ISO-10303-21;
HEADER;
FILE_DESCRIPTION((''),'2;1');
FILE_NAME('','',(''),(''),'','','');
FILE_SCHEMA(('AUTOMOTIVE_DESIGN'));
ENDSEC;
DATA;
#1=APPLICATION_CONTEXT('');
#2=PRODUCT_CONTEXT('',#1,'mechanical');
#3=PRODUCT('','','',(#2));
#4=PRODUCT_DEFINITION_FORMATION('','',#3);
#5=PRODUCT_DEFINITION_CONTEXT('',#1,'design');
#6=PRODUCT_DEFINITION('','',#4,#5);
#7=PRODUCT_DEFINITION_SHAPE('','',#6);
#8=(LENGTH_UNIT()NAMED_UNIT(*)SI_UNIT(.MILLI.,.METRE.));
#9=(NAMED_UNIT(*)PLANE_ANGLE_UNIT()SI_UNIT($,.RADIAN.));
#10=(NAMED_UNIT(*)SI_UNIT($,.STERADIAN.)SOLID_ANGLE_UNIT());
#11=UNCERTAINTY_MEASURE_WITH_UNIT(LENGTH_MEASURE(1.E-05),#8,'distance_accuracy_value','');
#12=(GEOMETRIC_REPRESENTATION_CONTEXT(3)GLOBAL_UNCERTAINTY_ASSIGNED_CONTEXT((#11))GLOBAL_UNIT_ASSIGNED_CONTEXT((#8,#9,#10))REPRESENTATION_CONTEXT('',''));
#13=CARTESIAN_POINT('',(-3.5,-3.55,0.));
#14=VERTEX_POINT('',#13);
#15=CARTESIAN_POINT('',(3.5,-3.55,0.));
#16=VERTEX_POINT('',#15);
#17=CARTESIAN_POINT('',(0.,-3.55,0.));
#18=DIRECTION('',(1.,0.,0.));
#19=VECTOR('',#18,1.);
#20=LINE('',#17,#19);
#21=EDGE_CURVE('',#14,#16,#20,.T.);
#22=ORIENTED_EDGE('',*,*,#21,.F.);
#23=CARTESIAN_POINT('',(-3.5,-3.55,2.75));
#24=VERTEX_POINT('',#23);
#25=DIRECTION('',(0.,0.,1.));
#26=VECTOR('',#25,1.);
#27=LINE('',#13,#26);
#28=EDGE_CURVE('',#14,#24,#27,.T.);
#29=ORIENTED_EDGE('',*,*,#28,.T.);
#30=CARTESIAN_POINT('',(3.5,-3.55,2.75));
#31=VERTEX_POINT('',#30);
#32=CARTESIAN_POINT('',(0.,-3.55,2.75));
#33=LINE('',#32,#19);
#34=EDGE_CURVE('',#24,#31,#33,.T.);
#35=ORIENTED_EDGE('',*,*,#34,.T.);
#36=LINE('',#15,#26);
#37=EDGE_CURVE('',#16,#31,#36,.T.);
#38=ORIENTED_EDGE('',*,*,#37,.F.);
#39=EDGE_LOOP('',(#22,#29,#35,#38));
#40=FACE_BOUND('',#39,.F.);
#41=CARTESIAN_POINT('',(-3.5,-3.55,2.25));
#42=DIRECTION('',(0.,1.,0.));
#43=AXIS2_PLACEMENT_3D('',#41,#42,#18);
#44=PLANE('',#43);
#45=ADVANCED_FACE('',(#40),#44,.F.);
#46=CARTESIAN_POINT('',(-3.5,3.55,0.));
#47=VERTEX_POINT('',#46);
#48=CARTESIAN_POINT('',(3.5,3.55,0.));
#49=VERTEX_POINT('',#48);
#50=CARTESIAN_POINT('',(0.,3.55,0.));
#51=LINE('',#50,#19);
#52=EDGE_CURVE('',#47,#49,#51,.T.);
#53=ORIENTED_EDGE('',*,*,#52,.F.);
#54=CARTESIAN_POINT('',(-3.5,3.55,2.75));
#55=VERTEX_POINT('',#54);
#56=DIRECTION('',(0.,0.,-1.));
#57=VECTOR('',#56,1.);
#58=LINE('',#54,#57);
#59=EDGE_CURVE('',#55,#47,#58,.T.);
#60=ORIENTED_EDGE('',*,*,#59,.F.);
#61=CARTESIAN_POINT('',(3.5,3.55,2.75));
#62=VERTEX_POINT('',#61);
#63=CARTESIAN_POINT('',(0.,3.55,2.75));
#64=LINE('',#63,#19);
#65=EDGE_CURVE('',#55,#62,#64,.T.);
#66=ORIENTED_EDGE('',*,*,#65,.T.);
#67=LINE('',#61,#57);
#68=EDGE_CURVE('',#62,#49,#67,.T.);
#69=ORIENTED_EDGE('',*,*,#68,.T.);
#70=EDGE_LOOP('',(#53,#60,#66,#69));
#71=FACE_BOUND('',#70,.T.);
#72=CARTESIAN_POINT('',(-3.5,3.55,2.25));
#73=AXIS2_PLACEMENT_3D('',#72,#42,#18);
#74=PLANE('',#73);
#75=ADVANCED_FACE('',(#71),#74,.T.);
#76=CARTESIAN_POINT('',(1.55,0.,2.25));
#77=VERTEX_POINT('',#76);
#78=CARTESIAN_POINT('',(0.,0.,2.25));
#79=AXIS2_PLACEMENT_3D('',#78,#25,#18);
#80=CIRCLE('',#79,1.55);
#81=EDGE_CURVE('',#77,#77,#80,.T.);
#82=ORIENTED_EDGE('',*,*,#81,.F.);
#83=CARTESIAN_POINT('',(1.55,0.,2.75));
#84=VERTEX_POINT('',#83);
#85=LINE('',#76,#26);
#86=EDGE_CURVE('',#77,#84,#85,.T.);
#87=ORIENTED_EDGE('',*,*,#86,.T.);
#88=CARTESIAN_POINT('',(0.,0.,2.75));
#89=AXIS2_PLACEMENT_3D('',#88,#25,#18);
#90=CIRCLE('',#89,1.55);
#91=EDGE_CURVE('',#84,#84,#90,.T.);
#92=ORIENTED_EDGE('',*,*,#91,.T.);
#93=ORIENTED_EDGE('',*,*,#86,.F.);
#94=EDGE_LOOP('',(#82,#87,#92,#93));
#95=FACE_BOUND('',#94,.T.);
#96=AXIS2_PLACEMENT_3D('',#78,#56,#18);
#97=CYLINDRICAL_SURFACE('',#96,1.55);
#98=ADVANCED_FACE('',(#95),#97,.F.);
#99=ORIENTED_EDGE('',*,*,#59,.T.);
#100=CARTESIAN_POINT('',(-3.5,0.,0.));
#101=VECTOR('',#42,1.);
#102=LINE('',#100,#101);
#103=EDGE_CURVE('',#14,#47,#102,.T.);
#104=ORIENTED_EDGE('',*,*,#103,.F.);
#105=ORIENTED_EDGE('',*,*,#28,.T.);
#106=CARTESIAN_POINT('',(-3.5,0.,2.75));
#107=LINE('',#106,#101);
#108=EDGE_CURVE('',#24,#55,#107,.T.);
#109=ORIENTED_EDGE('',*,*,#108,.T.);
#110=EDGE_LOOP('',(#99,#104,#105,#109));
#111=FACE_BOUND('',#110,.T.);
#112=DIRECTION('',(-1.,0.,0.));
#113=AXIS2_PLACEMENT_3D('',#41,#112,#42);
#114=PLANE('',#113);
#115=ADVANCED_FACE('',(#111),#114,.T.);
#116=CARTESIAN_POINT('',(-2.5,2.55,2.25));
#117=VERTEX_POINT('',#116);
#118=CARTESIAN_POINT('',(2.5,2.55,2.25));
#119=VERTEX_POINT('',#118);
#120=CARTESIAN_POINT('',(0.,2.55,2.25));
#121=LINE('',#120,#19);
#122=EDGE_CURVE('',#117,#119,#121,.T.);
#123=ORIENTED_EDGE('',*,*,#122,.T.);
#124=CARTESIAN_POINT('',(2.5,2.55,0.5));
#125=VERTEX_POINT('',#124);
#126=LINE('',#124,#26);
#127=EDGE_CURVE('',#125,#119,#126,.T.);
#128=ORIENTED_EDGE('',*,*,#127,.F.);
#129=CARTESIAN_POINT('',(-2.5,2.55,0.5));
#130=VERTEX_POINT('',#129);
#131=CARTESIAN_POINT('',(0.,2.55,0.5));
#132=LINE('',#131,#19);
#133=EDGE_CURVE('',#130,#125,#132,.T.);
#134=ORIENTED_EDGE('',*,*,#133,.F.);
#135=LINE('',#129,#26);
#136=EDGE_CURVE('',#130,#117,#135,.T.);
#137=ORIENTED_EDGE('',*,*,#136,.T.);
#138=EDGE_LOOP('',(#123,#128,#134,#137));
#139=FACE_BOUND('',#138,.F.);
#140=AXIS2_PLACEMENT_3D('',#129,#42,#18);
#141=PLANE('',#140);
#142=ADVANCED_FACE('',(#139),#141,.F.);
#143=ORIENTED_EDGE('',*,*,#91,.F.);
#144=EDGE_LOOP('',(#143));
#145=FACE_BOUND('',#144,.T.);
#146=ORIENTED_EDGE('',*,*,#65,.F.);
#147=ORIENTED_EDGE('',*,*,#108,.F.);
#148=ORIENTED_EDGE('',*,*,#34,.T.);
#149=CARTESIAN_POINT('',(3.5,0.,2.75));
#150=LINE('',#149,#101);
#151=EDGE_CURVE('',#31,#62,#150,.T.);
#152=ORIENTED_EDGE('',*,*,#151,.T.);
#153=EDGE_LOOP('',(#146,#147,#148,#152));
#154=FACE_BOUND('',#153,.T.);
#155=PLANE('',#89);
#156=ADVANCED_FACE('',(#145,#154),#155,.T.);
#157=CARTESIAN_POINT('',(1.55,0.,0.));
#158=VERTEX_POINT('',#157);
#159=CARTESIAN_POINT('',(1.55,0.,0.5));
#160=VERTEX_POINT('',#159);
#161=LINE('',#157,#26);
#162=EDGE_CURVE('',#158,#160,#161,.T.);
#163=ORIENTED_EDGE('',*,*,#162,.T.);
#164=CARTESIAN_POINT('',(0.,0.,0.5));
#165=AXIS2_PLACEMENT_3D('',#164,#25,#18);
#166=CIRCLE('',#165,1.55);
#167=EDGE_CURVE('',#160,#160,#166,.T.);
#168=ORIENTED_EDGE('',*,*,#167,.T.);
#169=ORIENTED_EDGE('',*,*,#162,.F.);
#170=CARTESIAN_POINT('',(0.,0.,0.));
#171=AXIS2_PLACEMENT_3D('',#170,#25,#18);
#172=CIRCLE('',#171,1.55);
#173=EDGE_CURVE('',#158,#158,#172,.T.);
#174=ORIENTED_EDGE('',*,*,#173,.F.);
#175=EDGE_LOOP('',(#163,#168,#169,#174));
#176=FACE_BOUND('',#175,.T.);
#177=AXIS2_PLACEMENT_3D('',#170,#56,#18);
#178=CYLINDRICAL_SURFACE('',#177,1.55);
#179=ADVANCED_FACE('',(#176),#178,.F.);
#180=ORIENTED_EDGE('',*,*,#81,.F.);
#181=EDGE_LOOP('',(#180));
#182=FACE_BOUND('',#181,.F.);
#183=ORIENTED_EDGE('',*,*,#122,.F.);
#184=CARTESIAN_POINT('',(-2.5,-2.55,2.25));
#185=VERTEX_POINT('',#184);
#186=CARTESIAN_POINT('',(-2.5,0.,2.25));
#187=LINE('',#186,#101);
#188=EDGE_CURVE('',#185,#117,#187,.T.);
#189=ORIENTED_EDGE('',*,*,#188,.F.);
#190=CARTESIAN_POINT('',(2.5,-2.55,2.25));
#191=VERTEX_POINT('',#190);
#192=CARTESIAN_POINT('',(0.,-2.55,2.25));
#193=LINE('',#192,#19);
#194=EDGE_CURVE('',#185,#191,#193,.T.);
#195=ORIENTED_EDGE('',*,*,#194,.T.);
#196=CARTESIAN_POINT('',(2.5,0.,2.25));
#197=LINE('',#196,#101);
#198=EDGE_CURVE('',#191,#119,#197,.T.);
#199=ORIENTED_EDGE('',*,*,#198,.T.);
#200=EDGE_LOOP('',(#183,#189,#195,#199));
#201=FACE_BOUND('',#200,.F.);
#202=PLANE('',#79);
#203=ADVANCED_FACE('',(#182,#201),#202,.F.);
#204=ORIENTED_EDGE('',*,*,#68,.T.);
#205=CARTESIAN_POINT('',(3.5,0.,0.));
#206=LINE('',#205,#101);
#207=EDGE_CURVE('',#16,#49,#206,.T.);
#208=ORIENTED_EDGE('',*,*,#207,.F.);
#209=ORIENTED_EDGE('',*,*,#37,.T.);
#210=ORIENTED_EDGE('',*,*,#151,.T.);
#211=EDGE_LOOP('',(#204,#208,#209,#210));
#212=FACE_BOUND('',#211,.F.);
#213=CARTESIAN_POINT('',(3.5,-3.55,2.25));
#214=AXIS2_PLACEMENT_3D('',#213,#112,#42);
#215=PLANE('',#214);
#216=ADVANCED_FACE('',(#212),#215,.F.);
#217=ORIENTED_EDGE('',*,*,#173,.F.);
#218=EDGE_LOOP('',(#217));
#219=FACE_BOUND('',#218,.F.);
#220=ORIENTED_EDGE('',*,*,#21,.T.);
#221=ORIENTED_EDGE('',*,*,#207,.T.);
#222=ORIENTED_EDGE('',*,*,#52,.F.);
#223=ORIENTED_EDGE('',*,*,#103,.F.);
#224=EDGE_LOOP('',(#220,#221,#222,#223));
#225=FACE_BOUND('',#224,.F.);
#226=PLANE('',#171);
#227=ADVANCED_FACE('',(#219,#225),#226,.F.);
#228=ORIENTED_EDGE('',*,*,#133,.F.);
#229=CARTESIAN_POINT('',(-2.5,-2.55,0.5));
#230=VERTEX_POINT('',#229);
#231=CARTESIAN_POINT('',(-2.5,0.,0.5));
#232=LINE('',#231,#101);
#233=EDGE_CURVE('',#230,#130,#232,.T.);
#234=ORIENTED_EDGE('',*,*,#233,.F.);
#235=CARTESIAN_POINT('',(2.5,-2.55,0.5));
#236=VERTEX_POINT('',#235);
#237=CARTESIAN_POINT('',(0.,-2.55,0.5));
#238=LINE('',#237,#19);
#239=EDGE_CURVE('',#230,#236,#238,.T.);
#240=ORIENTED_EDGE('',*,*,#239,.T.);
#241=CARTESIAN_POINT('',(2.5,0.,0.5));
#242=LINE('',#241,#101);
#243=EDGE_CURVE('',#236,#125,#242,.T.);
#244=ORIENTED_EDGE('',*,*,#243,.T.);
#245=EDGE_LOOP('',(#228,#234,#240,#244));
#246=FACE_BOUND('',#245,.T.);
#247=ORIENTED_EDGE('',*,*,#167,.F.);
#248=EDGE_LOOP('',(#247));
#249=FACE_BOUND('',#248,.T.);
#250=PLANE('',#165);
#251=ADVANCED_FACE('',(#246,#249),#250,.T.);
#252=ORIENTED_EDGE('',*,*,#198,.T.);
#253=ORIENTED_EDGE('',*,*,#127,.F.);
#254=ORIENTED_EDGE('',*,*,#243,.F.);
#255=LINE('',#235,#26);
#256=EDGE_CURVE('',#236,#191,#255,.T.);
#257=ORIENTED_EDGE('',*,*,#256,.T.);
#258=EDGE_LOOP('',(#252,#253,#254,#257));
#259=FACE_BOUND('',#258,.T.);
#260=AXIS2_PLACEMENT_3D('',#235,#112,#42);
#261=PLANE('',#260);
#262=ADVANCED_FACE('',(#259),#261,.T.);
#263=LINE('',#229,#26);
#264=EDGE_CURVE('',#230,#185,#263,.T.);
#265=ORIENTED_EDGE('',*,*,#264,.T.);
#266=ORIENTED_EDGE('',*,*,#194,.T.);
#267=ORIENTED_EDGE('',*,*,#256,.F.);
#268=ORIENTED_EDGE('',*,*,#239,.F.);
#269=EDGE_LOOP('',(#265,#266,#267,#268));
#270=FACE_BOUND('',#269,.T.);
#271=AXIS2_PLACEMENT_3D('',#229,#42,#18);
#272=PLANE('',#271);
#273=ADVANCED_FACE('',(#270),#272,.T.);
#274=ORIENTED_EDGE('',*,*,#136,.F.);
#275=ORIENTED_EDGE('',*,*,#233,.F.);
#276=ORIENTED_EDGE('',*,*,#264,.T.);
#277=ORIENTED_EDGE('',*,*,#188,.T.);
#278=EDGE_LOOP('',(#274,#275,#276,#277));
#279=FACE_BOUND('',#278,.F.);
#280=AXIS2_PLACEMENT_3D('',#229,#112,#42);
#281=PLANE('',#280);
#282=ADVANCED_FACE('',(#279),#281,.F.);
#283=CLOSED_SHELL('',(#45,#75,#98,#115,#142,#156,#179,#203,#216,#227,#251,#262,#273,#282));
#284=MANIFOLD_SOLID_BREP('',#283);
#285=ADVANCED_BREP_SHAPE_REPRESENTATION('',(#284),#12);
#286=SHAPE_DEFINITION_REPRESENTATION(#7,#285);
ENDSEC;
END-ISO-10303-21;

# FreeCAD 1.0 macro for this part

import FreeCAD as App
import Part
import Sketcher
Q = App.Units.Quantity

doc = App.newDocument("Part")
params = doc.addObject("Spreadsheet::Sheet", "Params")
for row, (alias, value) in enumerate([
    ("sketch1_diameter", "3.1 mm"),
    ("sketch1_width", "7 mm"),
    ("sketch1_height", "7.1 mm"),
    ("pad1_length", "0.5 mm"),
    ("sketch2_width", "7 mm"),
    ("sketch2_width2", "5 mm"),
    ("sketch2_height", "7.1 mm"),
    ("sketch2_height2", "5.1 mm"),
    ("pad2_length", "1.75 mm"),
    ("sketch3_diameter", "3.1 mm"),
    ("sketch3_width", "7 mm"),
    ("sketch3_height", "7.1 mm"),
    ("pad3_length", "0.5 mm"),
], start=1):
    params.set(f"A{row}", alias)
    params.set(f"B{row}", "=" + value)
    params.setAlias(f"B{row}", alias)

body = doc.addObject("PartDesign::Body", "Body")

# Sketch on XY plane
sketch1 = body.newObject("Sketcher::SketchObject", "Sketch")
sketch1.AttachmentSupport = (doc.getObject("XY_Plane"), [""])
sketch1.MapMode = "FlatFace"
sketch1.addGeometry(Part.LineSegment(App.Vector(-3.5, 3.5, 0), App.Vector(-3.5, -3.5, 0)), False)
sketch1.addGeometry(Part.LineSegment(App.Vector(-3.5, -3.5, 0), App.Vector(3.5, -3.5, 0)), False)
sketch1.addGeometry(Part.LineSegment(App.Vector(3.5, -3.5, 0), App.Vector(3.5, 3.5, 0)), False)
sketch1.addGeometry(Part.LineSegment(App.Vector(3.5, 3.5, 0), App.Vector(-3.5, 3.5, 0)), False)
sketch1.addGeometry(Part.Circle(App.Vector(0, 0, 0), App.Vector(0, 0, 1), 1.6), False)
sketch1.addConstraint(Sketcher.Constraint("Coincident", 0, 2, 1, 1))
sketch1.addConstraint(Sketcher.Constraint("Coincident", 1, 2, 2, 1))
sketch1.addConstraint(Sketcher.Constraint("Coincident", 2, 2, 3, 1))
sketch1.addConstraint(Sketcher.Constraint("Coincident", 3, 2, 0, 1))
sketch1.addConstraint(Sketcher.Constraint("Vertical", 0))
sketch1.addConstraint(Sketcher.Constraint("Horizontal", 1))
sketch1.addConstraint(Sketcher.Constraint("Vertical", 2))
sketch1.addConstraint(Sketcher.Constraint("Horizontal", 3))
sketch1.addConstraint(Sketcher.Constraint("Coincident", 4, 3, -1, 1))
sketch1.addConstraint(Sketcher.Constraint("Symmetric", 0, 2, 2, 2, -1, 1))
sketch1.addConstraint(Sketcher.Constraint("Diameter", 4, Q("3.1 mm")))
sketch1.addConstraint(Sketcher.Constraint("DistanceX", 1, 1, 1, 2, Q("7 mm")))
sketch1.addConstraint(Sketcher.Constraint("DistanceY", 0, 2, 0, 1, Q("7.1 mm")))
sketch1.setExpression("Constraints[10]", "Params.sketch1_diameter")
sketch1.setExpression("Constraints[11]", "Params.sketch1_width")
sketch1.setExpression("Constraints[12]", "Params.sketch1_height")
pad1 = body.newObject("PartDesign::Pad", "Pad")
pad1.Profile = sketch1
pad1.setExpression("Length", "Params.pad1_length")

# Sketch on XY plane
sketch2 = body.newObject("Sketcher::SketchObject", "Sketch001")
sketch2.AttachmentSupport = (doc.getObject("XY_Plane"), [""])
sketch2.MapMode = "FlatFace"
sketch2.AttachmentOffset = App.Placement(App.Vector(0, 0, 0.5), App.Rotation())
sketch2.addGeometry(Part.LineSegment(App.Vector(-4, 4, 0), App.Vector(-4, -4, 0)), False)
sketch2.addGeometry(Part.LineSegment(App.Vector(-4, -4, 0), App.Vector(4, -4, 0)), False)
sketch2.addGeometry(Part.LineSegment(App.Vector(4, -4, 0), App.Vector(4, 4, 0)), False)
sketch2.addGeometry(Part.LineSegment(App.Vector(4, 4, 0), App.Vector(-4, 4, 0)), False)
sketch2.addGeometry(Part.LineSegment(App.Vector(2, -3, 0), App.Vector(-2, -3, 0)), False)
sketch2.addGeometry(Part.LineSegment(App.Vector(-2, -3, 0), App.Vector(-2, 3, 0)), False)
sketch2.addGeometry(Part.LineSegment(App.Vector(-2, 3, 0), App.Vector(2, 3, 0)), False)
sketch2.addGeometry(Part.LineSegment(App.Vector(2, 3, 0), App.Vector(2, -3, 0)), False)
sketch2.addConstraint(Sketcher.Constraint("Coincident", 0, 2, 1, 1))
sketch2.addConstraint(Sketcher.Constraint("Coincident", 1, 2, 2, 1))
sketch2.addConstraint(Sketcher.Constraint("Coincident", 2, 2, 3, 1))
sketch2.addConstraint(Sketcher.Constraint("Coincident", 3, 2, 0, 1))
sketch2.addConstraint(Sketcher.Constraint("Coincident", 4, 2, 5, 1))
sketch2.addConstraint(Sketcher.Constraint("Coincident", 5, 2, 6, 1))
sketch2.addConstraint(Sketcher.Constraint("Coincident", 6, 2, 7, 1))
sketch2.addConstraint(Sketcher.Constraint("Coincident", 7, 2, 4, 1))
sketch2.addConstraint(Sketcher.Constraint("Vertical", 0))
sketch2.addConstraint(Sketcher.Constraint("Horizontal", 1))
sketch2.addConstraint(Sketcher.Constraint("Vertical", 2))
sketch2.addConstraint(Sketcher.Constraint("Horizontal", 3))
sketch2.addConstraint(Sketcher.Constraint("Horizontal", 4))
sketch2.addConstraint(Sketcher.Constraint("Vertical", 5))
sketch2.addConstraint(Sketcher.Constraint("Horizontal", 6))
sketch2.addConstraint(Sketcher.Constraint("Vertical", 7))
sketch2.addConstraint(Sketcher.Constraint("Symmetric", 0, 2, 2, 2, -1, 1))
sketch2.addConstraint(Sketcher.Constraint("Symmetric", 4, 2, 6, 2, -1, 1))
sketch2.addConstraint(Sketcher.Constraint("DistanceX", 1, 1, 1, 2, Q("7 mm")))
sketch2.addConstraint(Sketcher.Constraint("DistanceX", 4, 2, 4, 1, Q("5 mm")))
sketch2.addConstraint(Sketcher.Constraint("DistanceY", 0, 2, 0, 1, Q("7.1 mm")))
sketch2.addConstraint(Sketcher.Constraint("DistanceY", 5, 1, 5, 2, Q("5.1 mm")))
sketch2.setExpression("Constraints[18]", "Params.sketch2_width")
sketch2.setExpression("Constraints[19]", "Params.sketch2_width2")
sketch2.setExpression("Constraints[20]", "Params.sketch2_height")
sketch2.setExpression("Constraints[21]", "Params.sketch2_height2")
pad2 = body.newObject("PartDesign::Pad", "Pad001")
pad2.Profile = sketch2
pad2.setExpression("Length", "Params.pad2_length")

# Sketch on XY plane
sketch3 = body.newObject("Sketcher::SketchObject", "Sketch002")
sketch3.AttachmentSupport = (doc.getObject("XY_Plane"), [""])
sketch3.MapMode = "FlatFace"
sketch3.AttachmentOffset = App.Placement(App.Vector(0, 0, 2.25), App.Rotation())
sketch3.addGeometry(Part.LineSegment(App.Vector(-3.5, 3.5, 0), App.Vector(-3.5, -3.5, 0)), False)
sketch3.addGeometry(Part.LineSegment(App.Vector(-3.5, -3.5, 0), App.Vector(3.5, -3.5, 0)), False)
sketch3.addGeometry(Part.LineSegment(App.Vector(3.5, -3.5, 0), App.Vector(3.5, 3.5, 0)), False)
sketch3.addGeometry(Part.LineSegment(App.Vector(3.5, 3.5, 0), App.Vector(-3.5, 3.5, 0)), False)
sketch3.addGeometry(Part.Circle(App.Vector(0, 0, 0), App.Vector(0, 0, 1), 1.6), False)
sketch3.addConstraint(Sketcher.Constraint("Coincident", 0, 2, 1, 1))
sketch3.addConstraint(Sketcher.Constraint("Coincident", 1, 2, 2, 1))
sketch3.addConstraint(Sketcher.Constraint("Coincident", 2, 2, 3, 1))
sketch3.addConstraint(Sketcher.Constraint("Coincident", 3, 2, 0, 1))
sketch3.addConstraint(Sketcher.Constraint("Vertical", 0))
sketch3.addConstraint(Sketcher.Constraint("Horizontal", 1))
sketch3.addConstraint(Sketcher.Constraint("Vertical", 2))
sketch3.addConstraint(Sketcher.Constraint("Horizontal", 3))
sketch3.addConstraint(Sketcher.Constraint("Coincident", 4, 3, -1, 1))
sketch3.addConstraint(Sketcher.Constraint("Symmetric", 0, 2, 2, 2, -1, 1))
sketch3.addConstraint(Sketcher.Constraint("Diameter", 4, Q("3.1 mm")))
sketch3.addConstraint(Sketcher.Constraint("DistanceX", 1, 1, 1, 2, Q("7 mm")))
sketch3.addConstraint(Sketcher.Constraint("DistanceY", 0, 2, 0, 1, Q("7.1 mm")))
sketch3.setExpression("Constraints[10]", "Params.sketch3_diameter")
sketch3.setExpression("Constraints[11]", "Params.sketch3_width")
sketch3.setExpression("Constraints[12]", "Params.sketch3_height")
pad3 = body.newObject("PartDesign::Pad", "Pad002")
pad3.Profile = sketch3
pad3.setExpression("Length", "Params.pad3_length")

doc.recompute()
